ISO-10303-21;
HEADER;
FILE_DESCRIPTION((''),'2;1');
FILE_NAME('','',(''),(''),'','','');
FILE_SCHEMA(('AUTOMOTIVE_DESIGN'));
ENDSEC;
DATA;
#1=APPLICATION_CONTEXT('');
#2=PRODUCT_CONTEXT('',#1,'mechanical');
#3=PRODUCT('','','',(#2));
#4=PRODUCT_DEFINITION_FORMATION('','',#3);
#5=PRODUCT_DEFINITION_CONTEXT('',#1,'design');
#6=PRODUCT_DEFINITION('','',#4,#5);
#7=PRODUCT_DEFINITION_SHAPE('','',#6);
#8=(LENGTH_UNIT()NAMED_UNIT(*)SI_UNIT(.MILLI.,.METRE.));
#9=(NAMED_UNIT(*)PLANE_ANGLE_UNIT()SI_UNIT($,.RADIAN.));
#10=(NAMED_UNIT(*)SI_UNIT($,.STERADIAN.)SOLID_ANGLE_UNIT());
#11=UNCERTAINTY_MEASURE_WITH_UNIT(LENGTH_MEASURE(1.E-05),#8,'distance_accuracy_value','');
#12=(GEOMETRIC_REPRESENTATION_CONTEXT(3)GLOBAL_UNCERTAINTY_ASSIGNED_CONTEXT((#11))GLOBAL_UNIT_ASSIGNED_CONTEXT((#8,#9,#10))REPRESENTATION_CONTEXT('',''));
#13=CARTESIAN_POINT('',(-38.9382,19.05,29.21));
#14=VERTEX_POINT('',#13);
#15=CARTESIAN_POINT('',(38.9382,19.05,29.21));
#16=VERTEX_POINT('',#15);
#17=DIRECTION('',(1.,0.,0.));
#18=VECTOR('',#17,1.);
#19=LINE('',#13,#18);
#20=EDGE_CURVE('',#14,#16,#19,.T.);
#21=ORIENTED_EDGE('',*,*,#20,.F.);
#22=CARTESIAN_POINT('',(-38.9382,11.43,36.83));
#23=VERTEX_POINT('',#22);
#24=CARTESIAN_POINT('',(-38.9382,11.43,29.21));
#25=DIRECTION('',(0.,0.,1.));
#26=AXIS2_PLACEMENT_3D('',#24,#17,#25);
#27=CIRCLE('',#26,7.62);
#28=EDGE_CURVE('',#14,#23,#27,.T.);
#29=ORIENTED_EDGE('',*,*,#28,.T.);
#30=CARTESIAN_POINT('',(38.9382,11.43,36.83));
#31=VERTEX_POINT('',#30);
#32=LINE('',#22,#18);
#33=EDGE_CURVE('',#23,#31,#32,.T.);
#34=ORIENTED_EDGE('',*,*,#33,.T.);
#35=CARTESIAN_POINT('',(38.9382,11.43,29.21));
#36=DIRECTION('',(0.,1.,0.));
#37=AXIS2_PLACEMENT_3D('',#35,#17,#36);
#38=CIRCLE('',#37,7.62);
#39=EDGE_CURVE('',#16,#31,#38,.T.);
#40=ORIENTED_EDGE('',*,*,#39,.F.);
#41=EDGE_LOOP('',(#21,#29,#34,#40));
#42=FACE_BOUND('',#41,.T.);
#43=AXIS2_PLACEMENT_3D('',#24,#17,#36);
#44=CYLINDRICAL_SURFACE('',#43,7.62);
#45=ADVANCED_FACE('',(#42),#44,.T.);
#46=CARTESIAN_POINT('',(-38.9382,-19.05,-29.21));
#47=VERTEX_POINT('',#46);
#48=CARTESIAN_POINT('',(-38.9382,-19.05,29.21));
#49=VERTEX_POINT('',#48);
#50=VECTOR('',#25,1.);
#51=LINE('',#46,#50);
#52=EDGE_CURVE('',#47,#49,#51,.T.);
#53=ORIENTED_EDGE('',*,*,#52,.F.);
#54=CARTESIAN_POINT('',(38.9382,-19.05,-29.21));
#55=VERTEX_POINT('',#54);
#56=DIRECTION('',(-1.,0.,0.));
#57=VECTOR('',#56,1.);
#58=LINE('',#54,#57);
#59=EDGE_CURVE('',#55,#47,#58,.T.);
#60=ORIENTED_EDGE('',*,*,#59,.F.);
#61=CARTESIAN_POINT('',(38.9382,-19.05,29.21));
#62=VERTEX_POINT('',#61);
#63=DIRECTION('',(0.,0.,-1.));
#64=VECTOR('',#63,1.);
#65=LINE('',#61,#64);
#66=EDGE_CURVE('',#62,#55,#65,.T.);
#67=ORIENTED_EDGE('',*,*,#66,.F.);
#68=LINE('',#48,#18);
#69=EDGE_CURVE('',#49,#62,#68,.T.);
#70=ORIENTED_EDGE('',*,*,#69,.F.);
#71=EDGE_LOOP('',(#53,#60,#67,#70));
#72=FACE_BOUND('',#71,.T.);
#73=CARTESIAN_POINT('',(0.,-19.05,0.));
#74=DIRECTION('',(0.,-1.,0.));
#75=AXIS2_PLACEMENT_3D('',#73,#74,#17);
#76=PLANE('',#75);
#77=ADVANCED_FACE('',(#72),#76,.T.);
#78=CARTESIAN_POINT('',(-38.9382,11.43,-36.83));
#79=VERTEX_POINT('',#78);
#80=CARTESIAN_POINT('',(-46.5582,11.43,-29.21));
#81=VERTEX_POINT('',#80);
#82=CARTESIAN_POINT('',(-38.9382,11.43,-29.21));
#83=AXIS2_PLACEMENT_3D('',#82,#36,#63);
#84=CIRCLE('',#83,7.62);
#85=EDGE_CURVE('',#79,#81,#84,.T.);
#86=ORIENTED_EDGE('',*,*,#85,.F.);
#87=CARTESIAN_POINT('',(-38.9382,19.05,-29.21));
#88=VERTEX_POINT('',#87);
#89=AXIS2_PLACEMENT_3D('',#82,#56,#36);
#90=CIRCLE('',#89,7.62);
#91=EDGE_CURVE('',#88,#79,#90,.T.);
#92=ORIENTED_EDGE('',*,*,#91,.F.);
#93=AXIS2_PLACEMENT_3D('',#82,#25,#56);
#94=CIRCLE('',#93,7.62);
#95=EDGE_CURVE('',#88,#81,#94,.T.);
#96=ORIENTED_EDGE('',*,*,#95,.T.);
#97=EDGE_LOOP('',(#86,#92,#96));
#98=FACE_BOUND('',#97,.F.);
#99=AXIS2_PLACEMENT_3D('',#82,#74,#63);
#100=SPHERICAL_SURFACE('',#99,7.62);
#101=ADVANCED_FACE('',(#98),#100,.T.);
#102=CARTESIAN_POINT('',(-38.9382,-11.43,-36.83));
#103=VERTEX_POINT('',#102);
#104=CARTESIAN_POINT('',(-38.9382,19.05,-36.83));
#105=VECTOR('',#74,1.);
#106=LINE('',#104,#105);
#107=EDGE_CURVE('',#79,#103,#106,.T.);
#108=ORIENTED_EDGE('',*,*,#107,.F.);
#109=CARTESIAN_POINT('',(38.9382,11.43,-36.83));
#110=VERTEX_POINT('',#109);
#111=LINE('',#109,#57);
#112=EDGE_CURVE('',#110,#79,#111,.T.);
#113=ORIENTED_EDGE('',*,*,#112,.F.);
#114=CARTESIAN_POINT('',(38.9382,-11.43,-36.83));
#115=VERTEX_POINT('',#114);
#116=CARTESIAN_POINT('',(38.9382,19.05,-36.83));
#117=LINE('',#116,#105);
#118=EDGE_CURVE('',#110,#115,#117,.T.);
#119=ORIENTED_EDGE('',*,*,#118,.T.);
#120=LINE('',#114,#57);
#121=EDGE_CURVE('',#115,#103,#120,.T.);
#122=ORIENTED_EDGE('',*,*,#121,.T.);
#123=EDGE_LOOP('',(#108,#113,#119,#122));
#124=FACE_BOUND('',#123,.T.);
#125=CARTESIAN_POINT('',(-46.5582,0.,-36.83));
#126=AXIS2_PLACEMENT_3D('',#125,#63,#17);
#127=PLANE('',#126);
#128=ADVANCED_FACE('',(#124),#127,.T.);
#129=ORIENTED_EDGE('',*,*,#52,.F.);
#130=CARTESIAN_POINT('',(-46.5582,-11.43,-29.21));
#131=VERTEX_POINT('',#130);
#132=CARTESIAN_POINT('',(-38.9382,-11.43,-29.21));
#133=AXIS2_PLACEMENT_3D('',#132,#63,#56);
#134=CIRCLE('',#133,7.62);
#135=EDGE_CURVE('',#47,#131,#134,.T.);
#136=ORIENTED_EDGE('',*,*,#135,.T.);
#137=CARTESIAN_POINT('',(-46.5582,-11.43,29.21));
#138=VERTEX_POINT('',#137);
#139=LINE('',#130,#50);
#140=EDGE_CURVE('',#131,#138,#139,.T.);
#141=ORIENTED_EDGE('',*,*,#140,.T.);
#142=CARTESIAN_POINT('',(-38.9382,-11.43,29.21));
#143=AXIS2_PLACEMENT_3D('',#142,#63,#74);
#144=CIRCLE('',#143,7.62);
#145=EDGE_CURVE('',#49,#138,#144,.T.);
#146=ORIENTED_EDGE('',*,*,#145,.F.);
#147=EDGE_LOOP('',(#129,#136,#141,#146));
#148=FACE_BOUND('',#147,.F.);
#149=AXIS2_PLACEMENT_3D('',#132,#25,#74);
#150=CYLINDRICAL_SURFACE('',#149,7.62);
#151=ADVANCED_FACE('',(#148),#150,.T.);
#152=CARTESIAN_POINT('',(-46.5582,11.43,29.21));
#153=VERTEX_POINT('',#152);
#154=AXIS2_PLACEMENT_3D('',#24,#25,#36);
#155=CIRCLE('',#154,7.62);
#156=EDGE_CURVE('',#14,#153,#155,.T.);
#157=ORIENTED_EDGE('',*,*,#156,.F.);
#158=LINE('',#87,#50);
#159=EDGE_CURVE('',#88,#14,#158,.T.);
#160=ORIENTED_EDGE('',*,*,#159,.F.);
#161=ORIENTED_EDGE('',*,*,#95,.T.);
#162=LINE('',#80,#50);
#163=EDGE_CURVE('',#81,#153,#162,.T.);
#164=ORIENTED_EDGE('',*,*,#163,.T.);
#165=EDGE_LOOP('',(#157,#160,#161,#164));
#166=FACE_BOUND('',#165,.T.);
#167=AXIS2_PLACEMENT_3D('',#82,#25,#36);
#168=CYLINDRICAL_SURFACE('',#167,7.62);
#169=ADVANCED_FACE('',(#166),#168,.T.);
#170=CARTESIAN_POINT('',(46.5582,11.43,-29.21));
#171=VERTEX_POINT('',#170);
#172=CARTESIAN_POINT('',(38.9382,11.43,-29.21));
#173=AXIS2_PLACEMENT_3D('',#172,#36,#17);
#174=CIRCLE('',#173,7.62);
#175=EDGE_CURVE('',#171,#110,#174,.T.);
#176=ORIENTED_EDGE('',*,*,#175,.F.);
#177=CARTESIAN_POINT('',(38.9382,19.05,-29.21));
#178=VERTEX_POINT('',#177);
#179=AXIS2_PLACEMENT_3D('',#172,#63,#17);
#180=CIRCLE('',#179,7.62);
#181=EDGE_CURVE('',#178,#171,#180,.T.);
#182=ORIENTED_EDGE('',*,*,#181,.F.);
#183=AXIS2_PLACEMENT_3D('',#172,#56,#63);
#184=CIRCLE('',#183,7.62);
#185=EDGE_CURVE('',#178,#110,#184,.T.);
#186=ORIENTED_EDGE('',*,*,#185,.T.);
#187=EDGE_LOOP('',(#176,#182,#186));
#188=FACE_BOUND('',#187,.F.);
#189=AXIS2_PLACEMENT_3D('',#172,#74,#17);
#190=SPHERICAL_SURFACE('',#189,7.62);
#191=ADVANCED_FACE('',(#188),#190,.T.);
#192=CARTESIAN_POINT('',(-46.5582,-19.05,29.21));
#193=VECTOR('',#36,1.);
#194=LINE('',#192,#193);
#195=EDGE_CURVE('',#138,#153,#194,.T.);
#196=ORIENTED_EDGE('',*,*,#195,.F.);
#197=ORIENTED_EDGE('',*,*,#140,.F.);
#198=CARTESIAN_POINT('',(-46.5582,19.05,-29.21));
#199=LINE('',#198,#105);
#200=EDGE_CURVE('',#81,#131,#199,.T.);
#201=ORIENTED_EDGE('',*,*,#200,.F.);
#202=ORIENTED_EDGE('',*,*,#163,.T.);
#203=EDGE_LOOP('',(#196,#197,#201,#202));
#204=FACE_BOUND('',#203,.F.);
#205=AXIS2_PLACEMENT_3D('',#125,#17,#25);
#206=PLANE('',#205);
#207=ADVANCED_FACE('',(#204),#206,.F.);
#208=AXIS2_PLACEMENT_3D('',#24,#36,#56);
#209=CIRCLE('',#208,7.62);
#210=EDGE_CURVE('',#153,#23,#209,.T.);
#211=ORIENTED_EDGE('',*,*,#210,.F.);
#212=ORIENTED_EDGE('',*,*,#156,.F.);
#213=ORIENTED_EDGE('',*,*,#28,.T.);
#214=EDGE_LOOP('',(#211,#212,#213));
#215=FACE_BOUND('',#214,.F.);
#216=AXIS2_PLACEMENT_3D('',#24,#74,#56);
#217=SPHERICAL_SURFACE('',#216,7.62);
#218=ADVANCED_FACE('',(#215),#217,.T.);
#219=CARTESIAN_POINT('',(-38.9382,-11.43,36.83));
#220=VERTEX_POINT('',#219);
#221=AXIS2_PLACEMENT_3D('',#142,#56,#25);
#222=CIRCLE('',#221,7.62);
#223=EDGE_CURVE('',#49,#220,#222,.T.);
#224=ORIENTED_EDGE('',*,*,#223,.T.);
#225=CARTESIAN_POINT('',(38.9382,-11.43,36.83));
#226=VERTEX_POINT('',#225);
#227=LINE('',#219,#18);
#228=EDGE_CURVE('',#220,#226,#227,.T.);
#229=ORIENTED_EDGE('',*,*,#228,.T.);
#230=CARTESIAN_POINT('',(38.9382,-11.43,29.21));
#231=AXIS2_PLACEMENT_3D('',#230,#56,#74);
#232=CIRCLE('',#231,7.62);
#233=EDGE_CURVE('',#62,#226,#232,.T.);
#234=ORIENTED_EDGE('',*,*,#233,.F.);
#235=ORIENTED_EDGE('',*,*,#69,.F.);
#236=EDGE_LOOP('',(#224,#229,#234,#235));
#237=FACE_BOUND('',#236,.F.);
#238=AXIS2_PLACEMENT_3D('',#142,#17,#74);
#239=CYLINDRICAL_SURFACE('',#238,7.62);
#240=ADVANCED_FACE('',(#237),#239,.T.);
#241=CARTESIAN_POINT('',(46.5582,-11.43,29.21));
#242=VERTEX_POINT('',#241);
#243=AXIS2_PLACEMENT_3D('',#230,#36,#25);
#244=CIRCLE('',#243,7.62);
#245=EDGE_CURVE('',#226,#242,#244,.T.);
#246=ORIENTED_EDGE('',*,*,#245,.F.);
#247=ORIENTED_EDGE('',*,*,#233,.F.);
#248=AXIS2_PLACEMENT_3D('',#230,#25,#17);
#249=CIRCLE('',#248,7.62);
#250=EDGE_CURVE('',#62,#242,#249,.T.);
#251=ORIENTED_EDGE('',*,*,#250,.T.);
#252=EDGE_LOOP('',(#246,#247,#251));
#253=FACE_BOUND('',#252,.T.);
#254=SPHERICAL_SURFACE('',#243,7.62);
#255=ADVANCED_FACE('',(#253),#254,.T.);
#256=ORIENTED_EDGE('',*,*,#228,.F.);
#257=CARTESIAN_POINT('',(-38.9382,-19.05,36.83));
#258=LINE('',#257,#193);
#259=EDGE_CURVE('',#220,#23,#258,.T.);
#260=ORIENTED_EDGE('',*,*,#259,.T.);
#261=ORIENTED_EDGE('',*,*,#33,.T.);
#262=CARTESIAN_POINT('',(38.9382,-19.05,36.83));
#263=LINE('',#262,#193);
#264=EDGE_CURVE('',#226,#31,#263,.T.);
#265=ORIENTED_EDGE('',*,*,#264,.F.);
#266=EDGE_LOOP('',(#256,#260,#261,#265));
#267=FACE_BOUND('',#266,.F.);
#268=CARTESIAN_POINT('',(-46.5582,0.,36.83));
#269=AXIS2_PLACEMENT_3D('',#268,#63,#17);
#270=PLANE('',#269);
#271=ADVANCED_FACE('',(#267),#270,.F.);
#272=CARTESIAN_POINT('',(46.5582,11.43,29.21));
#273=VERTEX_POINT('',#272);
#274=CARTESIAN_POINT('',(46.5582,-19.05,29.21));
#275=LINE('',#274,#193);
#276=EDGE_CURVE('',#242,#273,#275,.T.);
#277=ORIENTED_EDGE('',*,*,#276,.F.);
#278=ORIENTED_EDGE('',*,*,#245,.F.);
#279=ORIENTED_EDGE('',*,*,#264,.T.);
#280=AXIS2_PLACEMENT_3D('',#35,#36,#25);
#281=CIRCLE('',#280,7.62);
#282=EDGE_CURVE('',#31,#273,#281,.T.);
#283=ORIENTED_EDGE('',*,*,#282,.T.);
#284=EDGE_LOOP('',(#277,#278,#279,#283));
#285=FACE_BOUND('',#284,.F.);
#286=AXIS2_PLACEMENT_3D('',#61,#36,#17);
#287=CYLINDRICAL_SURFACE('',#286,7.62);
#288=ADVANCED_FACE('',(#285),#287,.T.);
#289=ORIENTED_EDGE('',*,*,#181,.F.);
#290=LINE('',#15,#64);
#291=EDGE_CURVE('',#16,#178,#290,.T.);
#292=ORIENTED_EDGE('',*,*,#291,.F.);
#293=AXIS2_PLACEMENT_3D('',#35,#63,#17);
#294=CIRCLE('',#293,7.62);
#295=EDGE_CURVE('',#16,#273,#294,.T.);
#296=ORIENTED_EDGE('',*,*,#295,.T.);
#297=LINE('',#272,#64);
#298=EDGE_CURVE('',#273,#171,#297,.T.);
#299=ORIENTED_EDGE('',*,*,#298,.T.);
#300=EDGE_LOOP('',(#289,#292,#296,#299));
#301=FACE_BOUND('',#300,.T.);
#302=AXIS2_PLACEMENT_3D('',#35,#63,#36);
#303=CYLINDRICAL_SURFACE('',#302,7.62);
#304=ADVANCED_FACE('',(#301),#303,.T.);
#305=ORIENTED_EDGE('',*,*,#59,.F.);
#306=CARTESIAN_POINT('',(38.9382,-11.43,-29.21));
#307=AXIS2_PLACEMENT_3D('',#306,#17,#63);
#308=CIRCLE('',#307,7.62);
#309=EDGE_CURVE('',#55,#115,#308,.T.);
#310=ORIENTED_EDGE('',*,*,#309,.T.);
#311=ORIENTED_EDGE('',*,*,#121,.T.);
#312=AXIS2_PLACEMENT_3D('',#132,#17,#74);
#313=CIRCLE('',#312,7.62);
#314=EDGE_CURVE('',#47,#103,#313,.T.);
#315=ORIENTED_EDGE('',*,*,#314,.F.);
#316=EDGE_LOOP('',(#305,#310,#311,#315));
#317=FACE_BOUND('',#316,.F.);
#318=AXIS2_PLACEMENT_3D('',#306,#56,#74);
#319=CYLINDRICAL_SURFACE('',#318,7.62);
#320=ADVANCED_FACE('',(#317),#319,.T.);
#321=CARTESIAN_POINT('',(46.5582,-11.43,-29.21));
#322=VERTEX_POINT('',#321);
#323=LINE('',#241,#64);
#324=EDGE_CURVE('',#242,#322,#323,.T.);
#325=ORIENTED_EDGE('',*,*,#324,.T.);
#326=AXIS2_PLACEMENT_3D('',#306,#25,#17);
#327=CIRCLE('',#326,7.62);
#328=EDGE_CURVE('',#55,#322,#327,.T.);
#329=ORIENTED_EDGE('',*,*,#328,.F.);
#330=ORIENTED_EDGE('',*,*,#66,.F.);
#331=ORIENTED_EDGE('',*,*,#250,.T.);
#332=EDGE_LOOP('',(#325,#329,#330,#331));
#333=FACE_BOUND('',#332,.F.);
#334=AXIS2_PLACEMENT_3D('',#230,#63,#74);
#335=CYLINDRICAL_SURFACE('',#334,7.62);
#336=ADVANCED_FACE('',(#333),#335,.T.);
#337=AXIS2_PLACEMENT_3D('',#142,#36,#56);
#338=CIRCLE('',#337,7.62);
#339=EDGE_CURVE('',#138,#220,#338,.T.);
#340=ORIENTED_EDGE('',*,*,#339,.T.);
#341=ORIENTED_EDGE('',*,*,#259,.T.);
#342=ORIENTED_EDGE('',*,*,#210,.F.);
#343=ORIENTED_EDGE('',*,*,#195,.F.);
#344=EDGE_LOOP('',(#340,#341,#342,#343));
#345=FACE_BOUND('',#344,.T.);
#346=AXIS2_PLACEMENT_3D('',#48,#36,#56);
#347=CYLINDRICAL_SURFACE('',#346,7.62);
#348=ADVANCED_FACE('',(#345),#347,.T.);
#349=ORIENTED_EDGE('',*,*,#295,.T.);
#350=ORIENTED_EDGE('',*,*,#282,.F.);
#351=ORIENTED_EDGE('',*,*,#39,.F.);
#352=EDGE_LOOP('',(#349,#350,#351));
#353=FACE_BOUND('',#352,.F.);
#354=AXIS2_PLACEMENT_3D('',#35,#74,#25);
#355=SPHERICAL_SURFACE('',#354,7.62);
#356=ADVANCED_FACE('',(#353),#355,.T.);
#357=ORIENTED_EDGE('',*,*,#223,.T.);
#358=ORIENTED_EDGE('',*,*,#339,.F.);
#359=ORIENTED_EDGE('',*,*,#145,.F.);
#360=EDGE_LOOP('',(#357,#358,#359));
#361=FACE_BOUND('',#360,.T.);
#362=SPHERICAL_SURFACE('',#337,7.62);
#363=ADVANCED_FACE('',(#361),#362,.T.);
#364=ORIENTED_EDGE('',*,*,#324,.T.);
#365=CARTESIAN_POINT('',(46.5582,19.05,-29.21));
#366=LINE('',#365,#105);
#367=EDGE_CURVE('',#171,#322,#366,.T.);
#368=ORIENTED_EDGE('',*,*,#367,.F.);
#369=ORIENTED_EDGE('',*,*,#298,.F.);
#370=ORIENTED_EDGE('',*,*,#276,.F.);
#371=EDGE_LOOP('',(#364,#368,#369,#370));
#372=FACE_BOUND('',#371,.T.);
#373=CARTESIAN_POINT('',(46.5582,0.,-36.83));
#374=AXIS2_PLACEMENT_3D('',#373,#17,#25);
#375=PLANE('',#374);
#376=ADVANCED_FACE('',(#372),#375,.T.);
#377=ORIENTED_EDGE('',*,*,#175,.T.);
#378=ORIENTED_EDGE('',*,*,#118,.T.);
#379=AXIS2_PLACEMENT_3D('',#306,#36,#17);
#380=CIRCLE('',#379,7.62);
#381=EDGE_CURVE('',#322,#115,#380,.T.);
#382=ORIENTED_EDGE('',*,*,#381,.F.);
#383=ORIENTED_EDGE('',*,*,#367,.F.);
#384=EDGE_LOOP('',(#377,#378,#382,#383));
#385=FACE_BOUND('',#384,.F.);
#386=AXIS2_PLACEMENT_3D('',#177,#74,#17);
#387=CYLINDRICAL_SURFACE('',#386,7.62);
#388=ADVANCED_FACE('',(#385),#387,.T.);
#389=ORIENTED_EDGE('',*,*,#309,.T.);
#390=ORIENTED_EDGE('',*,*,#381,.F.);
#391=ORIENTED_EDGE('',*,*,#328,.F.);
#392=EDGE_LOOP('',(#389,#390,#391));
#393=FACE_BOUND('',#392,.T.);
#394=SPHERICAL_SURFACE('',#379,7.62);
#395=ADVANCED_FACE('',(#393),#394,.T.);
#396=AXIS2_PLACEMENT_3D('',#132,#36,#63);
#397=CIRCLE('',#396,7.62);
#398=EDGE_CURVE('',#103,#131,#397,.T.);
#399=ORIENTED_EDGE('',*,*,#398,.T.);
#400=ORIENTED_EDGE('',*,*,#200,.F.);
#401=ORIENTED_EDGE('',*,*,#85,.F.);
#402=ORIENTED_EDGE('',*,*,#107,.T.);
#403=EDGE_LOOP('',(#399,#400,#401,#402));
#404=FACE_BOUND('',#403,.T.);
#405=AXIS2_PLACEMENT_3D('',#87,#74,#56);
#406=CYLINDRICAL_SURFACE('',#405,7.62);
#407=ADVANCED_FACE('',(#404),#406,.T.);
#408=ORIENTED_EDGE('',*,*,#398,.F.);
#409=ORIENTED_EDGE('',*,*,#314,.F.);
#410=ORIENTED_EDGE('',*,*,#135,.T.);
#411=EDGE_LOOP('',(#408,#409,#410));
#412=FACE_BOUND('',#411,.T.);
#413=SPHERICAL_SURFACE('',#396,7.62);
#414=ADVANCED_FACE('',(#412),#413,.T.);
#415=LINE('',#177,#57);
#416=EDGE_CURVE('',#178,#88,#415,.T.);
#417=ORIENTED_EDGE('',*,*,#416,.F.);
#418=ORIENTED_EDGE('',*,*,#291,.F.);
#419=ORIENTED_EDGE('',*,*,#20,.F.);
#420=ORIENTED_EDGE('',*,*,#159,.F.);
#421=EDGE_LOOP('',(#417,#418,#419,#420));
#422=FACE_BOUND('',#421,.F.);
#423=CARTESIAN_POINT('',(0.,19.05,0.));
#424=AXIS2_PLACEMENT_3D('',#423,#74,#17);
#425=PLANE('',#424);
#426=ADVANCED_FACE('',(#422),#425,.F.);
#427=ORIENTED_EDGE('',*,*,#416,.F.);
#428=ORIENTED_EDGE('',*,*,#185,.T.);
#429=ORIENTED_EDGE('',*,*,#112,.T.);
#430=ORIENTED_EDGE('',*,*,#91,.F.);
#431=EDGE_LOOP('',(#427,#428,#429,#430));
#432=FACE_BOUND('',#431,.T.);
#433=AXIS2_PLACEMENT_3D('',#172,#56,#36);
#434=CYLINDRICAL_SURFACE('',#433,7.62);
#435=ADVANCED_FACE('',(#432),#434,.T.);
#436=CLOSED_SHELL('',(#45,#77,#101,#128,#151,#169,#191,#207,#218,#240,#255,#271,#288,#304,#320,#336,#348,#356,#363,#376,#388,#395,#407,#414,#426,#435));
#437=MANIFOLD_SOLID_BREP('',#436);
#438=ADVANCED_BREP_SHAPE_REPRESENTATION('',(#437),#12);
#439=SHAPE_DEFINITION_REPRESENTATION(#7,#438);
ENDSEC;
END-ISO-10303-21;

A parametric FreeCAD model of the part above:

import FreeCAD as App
import Part
import Sketcher
Q = App.Units.Quantity


def edges_at(feature, points):
    """Names of the edges that pass closest to the given points."""
    edges = feature.Shape.Edges
    near = lambda p: min(range(len(edges)), key=lambda i: edges[i].distToShape(Part.Vertex(*p))[0])
    return sorted({f"Edge{near(p) + 1}" for p in points})

doc = App.newDocument("Part")
params = doc.addObject("Spreadsheet::Sheet", "Params")
for row, (alias, value) in enumerate([
    ("sketch1_height", "2.9 in"),
    ("sketch1_width", "3.666 in"),
    ("pad1_length", "1.5 in"),
    ("fillet_radius", "0.3 in"),
    ("fillet2_radius", "0.3 in"),
    ("fillet3_radius", "0.3 in"),
], start=1):
    params.set(f"A{row}", alias)
    params.set(f"B{row}", "=" + value)
    params.setAlias(f"B{row}", alias)

body = doc.addObject("PartDesign::Body", "Body")

sketch1 = doc.addObject("Sketcher::SketchObject", "Sketch")
body.addObject(sketch1)
sketch1.AttachmentSupport = (doc.XZ_Plane, [""])
sketch1.MapMode = "FlatFace"
sketch1.addGeometry([
    Part.LineSegment(App.Vector(-47, 37, 0), App.Vector(-47, -37, 0)),
    Part.LineSegment(App.Vector(-47, -37, 0), App.Vector(47, -37, 0)),
    Part.LineSegment(App.Vector(47, -37, 0), App.Vector(47, 37, 0)),
    Part.LineSegment(App.Vector(47, 37, 0), App.Vector(-47, 37, 0)),
], False)
sketch1.addConstraint([
    Sketcher.Constraint("Coincident", 0, 2, 1, 1),
    Sketcher.Constraint("Coincident", 1, 2, 2, 1),
    Sketcher.Constraint("Coincident", 2, 2, 3, 1),
    Sketcher.Constraint("Coincident", 3, 2, 0, 1),
    Sketcher.Constraint("Vertical", 0),
    Sketcher.Constraint("Horizontal", 1),
    Sketcher.Constraint("Vertical", 2),
    Sketcher.Constraint("Horizontal", 3),
    Sketcher.Constraint("Symmetric", 0, 2, 2, 2, -1, 1),
    Sketcher.Constraint("DistanceY", 0, 2, 0, 1, Q("2.9 in")),
    Sketcher.Constraint("DistanceX", 1, 1, 1, 2, Q("3.666 in")),
])
sketch1.setExpression("Constraints[9]", "Params.sketch1_height")
sketch1.setExpression("Constraints[10]", "Params.sketch1_width")
pad1 = doc.addObject("PartDesign::Pad", "Pad")
body.addObject(pad1)
pad1.Profile = sketch1
pad1.setExpression("Length", "Params.pad1_length")
pad1.Midplane = True
doc.recompute()

fillet = doc.addObject("PartDesign::Fillet", "Fillet")
body.addObject(fillet)
fillet.Base = (pad1, edges_at(pad1, [
    (-46.558, 0, -36.83),
    (-46.558, 0, 36.83),
    (46.558, 0, -36.83),
    (46.558, 0, 36.83),
]))
fillet.setExpression("Radius", "Params.fillet_radius")
doc.recompute()

fillet2 = doc.addObject("PartDesign::Fillet", "Fillet001")
body.addObject(fillet2)
fillet2.Base = (fillet, edges_at(fillet, [
    (44.326, -19.05, -34.598),
    (0, -19.05, -36.83),
    (46.558, -19.05, 0),
    (44.326, -19.05, 34.598),
    (0, -19.05, 36.83),
    (-44.326, -19.05, 34.598),
    (-46.558, -19.05, 0),
    (-44.326, -19.05, -34.598),
]))
fillet2.setExpression("Radius", "Params.fillet2_radius")
doc.recompute()

fillet3 = doc.addObject("PartDesign::Fillet", "Fillet002")
body.addObject(fillet3)
fillet3.Base = (fillet2, edges_at(fillet2, [
    (44.326, 19.05, -34.598),
    (0, 19.05, -36.83),
    (46.558, 19.05, 0),
    (-44.326, 19.05, -34.598),
    (-46.558, 19.05, 0),
    (-44.326, 19.05, 34.598),
    (0, 19.05, 36.83),
    (44.326, 19.05, 34.598),
]))
fillet3.setExpression("Radius", "Params.fillet3_radius")

doc.recompute()
